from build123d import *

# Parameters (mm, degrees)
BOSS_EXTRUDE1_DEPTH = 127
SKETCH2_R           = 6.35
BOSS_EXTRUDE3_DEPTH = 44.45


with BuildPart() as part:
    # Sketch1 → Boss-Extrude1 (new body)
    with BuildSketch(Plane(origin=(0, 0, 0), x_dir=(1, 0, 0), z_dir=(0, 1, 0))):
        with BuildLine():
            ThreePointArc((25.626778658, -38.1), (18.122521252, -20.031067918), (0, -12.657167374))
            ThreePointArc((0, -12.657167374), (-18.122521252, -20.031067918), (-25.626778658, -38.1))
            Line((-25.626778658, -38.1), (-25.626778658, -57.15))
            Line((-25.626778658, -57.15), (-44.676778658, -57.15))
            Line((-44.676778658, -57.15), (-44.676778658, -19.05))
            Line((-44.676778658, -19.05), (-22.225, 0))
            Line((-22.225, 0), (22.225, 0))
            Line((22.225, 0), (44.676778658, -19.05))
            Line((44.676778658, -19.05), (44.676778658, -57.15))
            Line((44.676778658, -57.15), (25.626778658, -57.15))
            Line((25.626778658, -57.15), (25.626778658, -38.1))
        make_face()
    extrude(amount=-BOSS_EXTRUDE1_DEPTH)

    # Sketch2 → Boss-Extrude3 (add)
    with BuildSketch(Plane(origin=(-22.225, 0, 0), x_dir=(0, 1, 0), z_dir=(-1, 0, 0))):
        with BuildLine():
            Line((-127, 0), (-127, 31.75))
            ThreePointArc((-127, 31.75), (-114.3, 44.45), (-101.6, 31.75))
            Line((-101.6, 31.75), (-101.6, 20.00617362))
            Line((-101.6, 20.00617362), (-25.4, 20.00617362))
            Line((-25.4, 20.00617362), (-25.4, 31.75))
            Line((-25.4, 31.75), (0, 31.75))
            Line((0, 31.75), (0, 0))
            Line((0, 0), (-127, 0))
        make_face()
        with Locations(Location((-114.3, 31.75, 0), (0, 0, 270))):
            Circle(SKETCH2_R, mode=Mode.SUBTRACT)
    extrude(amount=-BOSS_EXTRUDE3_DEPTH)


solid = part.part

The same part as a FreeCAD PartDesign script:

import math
import FreeCAD as App
import Part
import Sketcher
Q = App.Units.Quantity

doc = App.newDocument("Part")
body = doc.addObject("PartDesign::Body", "Body")

sketch1 = body.newObject("Sketcher::SketchObject", "Sketch")
sketch1.AttachmentSupport = (doc.getObject("XZ_Plane"), [""])
sketch1.MapMode = "FlatFace"
sketch1.addGeometry([
    Part.ArcOfCircle(Part.Circle(App.Vector(0.226817, 38.056155, 0), App.Vector(0, 0, 1), 25.4), math.radians(-90.511646), math.radians(0.098904)),
    Part.LineSegment(App.Vector(25.626779, 38.1, 0), App.Vector(25.626779, 57.15, 0)),
    Part.LineSegment(App.Vector(25.626779, 57.15, 0), App.Vector(44.676779, 57.15, 0)),
    Part.LineSegment(App.Vector(44.676779, 57.15, 0), App.Vector(44.676779, 19.05, 0)),
    Part.LineSegment(App.Vector(44.676779, 19.05, 0), App.Vector(22.225, 0, 0)),
    Part.LineSegment(App.Vector(22.225, 0, 0), App.Vector(-22.225, 0, 0)),
    Part.LineSegment(App.Vector(-22.225, 0, 0), App.Vector(-44.676779, 19.05, 0)),
    Part.LineSegment(App.Vector(-44.676779, 19.05, 0), App.Vector(-44.676779, 57.15, 0)),
    Part.LineSegment(App.Vector(-44.676779, 57.15, 0), App.Vector(-25.626779, 57.15, 0)),
    Part.LineSegment(App.Vector(-25.626779, 57.15, 0), App.Vector(-25.626779, 38.1, 0)),
    Part.ArcOfCircle(Part.Circle(App.Vector(-0.226817, 38.056155, 0), App.Vector(0, 0, 1), 25.4), math.radians(179.901096), math.radians(270.511646)),
], False)
sketch1.addConstraint([
    Sketcher.Constraint("Coincident", 0, 2, 1, 1),
    Sketcher.Constraint("Coincident", 1, 2, 2, 1),
    Sketcher.Constraint("Coincident", 2, 2, 3, 1),
    Sketcher.Constraint("Coincident", 3, 2, 4, 1),
    Sketcher.Constraint("Coincident", 4, 2, 5, 1),
    Sketcher.Constraint("Coincident", 5, 2, 6, 1),
    Sketcher.Constraint("Coincident", 6, 2, 7, 1),
    Sketcher.Constraint("Coincident", 7, 2, 8, 1),
    Sketcher.Constraint("Coincident", 8, 2, 9, 1),
    Sketcher.Constraint("Coincident", 9, 2, 10, 1),
    Sketcher.Constraint("Coincident", 10, 2, 0, 1),
    Sketcher.Constraint("Vertical", 1),
    Sketcher.Constraint("Horizontal", 2),
    Sketcher.Constraint("Vertical", 3),
    Sketcher.Constraint("Horizontal", 5),
    Sketcher.Constraint("Vertical", 7),
    Sketcher.Constraint("Horizontal", 8),
    Sketcher.Constraint("Vertical", 9),
    Sketcher.Constraint("Equal", 0, 10),
    Sketcher.Constraint("Symmetric", 4, 2, 5, 2, -1, 1),
    Sketcher.Constraint("Symmetric", 0, 3, 10, 3, -2),
    Sketcher.Constraint("Symmetric", 3, 2, 6, 2, -2),
    Sketcher.Constraint("Horizontal", 2, 2, 7, 2),
    Sketcher.Constraint("Horizontal", 0, 2, 9, 2),
    Sketcher.Constraint("Equal", 8, 1),
    Sketcher.Constraint("Radius", 0, Q("1 in")),
    Sketcher.Constraint("DistanceY", 3, 2, 3, 1, Q("1.5 in")),
    Sketcher.Constraint("DistanceX", 2, 1, 2, 2, Q("0.75 in")),
    Sketcher.Constraint("DistanceX", 5, 2, 5, 1, Q("1.75 in")),
    Sketcher.Constraint("DistanceY", -1, 1, 0, 2, Q("1.5 in")),
    Sketcher.Constraint("DistanceX", -1, 1, 0, 2, 25.626779),
    Sketcher.Constraint("DistanceY", -1, 1, 0, 3, 38.056155),
])
pad1 = body.newObject("PartDesign::Pad", "Pad")
pad1.Profile = sketch1
pad1.Length = Q("5 in")

sketch2 = body.newObject("Sketcher::SketchObject", "Sketch001")
sketch2.AttachmentSupport = (doc.getObject("YZ_Plane"), [""])
sketch2.MapMode = "FlatFace"
sketch2.AttachmentOffset = App.Placement(App.Vector(0, 0, -0.875 * 25.4), App.Rotation())
sketch2.addGeometry([
    Part.LineSegment(App.Vector(-127, -32, 0), App.Vector(-127, 0, 0)),
    Part.LineSegment(App.Vector(-127, 0, 0), App.Vector(0, 0, 0)),
    Part.LineSegment(App.Vector(0, 0, 0), App.Vector(0, -32, 0)),
    Part.LineSegment(App.Vector(0, -32, 0), App.Vector(-25, -32, 0)),
    Part.LineSegment(App.Vector(-25, -32, 0), App.Vector(-25, -20, 0)),
    Part.LineSegment(App.Vector(-25, -20, 0), App.Vector(-102, -20, 0)),
    Part.LineSegment(App.Vector(-102, -20, 0), App.Vector(-102, -32, 0)),
    Part.ArcOfCircle(Part.Circle(App.Vector(-114, -32, 0), App.Vector(0, 0, 1), 13), math.radians(180), math.radians(360)),
    Part.Circle(App.Vector(-114, -32, 0), App.Vector(0, 0, 1), 6),
], False)
sketch2.addConstraint([
    Sketcher.Constraint("Coincident", 0, 2, 1, 1),
    Sketcher.Constraint("Coincident", 1, 2, 2, 1),
    Sketcher.Constraint("Coincident", 2, 2, 3, 1),
    Sketcher.Constraint("Coincident", 3, 2, 4, 1),
    Sketcher.Constraint("Coincident", 4, 2, 5, 1),
    Sketcher.Constraint("Coincident", 5, 2, 6, 1),
    Sketcher.Constraint("Tangent", 6, 2, 7, 2),
    Sketcher.Constraint("Tangent", 7, 1, 0, 1),
    Sketcher.Constraint("Vertical", 0),
    Sketcher.Constraint("Horizontal", 1),
    Sketcher.Constraint("Vertical", 2),
    Sketcher.Constraint("Horizontal", 3),
    Sketcher.Constraint("Vertical", 4),
    Sketcher.Constraint("Horizontal", 5),
    Sketcher.Constraint("Vertical", 6),
    Sketcher.Constraint("Coincident", 1, 2, -1, 1),
    Sketcher.Constraint("Coincident", 8, 3, 7, 3),
    Sketcher.Constraint("Horizontal", 8, 3, 2, 2),
    Sketcher.Constraint("Diameter", 8, Q("0.5 in")),
    Sketcher.Constraint("Radius", 7, Q("0.5 in")),
    Sketcher.Constraint("DistanceX", 1, 1, 1, 2, Q("5 in")),
    Sketcher.Constraint("DistanceX", 3, 2, 3, 1, Q("1 in")),
    Sketcher.Constraint("DistanceY", 0, 1, 0, 2, Q("1.25 in")),
    Sketcher.Constraint("DistanceY", 4, 1, 4, 2, 11.743826),
])
pad2 = body.newObject("PartDesign::Pad", "Pad001")
pad2.Profile = sketch2
pad2.Length = Q("1.75 in")

doc.recompute()
